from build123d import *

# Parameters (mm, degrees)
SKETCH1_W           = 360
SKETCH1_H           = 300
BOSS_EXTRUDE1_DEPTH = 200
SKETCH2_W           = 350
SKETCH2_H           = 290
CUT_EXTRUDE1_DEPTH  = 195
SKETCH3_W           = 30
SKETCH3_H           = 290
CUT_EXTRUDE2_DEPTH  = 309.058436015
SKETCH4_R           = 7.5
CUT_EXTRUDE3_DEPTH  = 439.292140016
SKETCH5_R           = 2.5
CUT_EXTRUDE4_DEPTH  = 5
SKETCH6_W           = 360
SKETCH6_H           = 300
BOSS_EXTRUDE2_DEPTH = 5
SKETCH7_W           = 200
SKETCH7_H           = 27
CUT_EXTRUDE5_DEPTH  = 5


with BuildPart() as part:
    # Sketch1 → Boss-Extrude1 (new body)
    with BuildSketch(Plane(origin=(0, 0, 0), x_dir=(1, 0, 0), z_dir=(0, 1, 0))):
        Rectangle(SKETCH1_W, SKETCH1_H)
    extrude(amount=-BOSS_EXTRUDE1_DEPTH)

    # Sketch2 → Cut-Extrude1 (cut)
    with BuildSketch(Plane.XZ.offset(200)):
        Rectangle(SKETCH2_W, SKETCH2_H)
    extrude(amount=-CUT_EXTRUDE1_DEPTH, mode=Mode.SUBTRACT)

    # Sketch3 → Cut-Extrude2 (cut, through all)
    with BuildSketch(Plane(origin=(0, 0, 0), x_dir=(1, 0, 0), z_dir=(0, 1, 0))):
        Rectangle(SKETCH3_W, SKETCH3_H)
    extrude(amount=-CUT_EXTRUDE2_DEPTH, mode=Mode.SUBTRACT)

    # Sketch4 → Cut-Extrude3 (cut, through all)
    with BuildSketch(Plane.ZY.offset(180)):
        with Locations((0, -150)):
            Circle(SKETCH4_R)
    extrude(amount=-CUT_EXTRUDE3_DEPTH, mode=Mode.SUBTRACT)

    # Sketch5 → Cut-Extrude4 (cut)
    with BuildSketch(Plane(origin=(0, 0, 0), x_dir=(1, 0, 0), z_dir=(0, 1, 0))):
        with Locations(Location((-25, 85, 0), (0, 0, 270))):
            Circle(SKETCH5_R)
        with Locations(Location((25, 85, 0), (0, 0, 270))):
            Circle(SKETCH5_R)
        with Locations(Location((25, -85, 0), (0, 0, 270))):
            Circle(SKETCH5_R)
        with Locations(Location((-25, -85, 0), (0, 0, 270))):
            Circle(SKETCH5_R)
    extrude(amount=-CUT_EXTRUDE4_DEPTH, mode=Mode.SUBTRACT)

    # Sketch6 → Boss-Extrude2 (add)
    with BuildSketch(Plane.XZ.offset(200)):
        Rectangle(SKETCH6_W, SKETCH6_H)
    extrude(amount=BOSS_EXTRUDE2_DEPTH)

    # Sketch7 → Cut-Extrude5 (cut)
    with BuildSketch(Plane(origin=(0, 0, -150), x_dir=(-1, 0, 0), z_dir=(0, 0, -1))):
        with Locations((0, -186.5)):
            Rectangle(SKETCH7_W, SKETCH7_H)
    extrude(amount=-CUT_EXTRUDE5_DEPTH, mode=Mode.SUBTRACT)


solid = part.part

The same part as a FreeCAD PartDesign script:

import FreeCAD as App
import Part
import Sketcher

V = App.Vector
Q = App.Units.Quantity

doc = App.newDocument("Part")
params = doc.addObject("Spreadsheet::Sheet", "Params")
for row, (alias, value) in enumerate([
    ("sketch1_width", "360 mm"),
    ("sketch1_height", "300 mm"),
    ("pad1_length", "200 mm"),
    ("sketch2_width", "350 mm"),
    ("sketch2_height", "290 mm"),
    ("pocket1_length", "195 mm"),
    ("sketch3_width", "30 mm"),
    ("sketch3_height", "290 mm"),
    ("sketch4_diameter", "15 mm"),
    ("sketch5_diameter", "5 mm"),
    ("pocket4_length", "5 mm"),
    ("sketch6_width", "360 mm"),
    ("sketch6_height", "300 mm"),
    ("pad2_length", "5 mm"),
    ("sketch7_width", "200 mm"),
    ("sketch7_height", "27 mm"),
    ("pocket5_length", "5 mm"),
], start=1):
    params.set(f"A{row}", alias)
    params.set(f"B{row}", "=" + value)
    params.setAlias(f"B{row}", alias)

body = doc.addObject("PartDesign::Body", "Body")

# Sketch on XZ plane
sketch1 = body.newObject("Sketcher::SketchObject", "Sketch")
sketch1.AttachmentSupport = (doc.getObject("XZ_Plane"), [""])
sketch1.MapMode = "FlatFace"
sketch1.addGeometry([
    Part.LineSegment(V(-180, -150, 0), V(-180, 150, 0)),
    Part.LineSegment(V(-180, 150, 0), V(180, 150, 0)),
    Part.LineSegment(V(180, 150, 0), V(180, -150, 0)),
    Part.LineSegment(V(180, -150, 0), V(-180, -150, 0)),
], False)
sketch1.addConstraint([
    Sketcher.Constraint("Coincident", 0, 2, 1, 1),
    Sketcher.Constraint("Coincident", 1, 2, 2, 1),
    Sketcher.Constraint("Coincident", 2, 2, 3, 1),
    Sketcher.Constraint("Coincident", 3, 2, 0, 1),
    Sketcher.Constraint("Vertical", 0),
    Sketcher.Constraint("Horizontal", 1),
    Sketcher.Constraint("Vertical", 2),
    Sketcher.Constraint("Horizontal", 3),
    Sketcher.Constraint("Symmetric", 0, 2, 2, 2, -1, 1),
    Sketcher.Constraint("DistanceX", 1, 1, 1, 2, Q("360 mm")),
    Sketcher.Constraint("DistanceY", 0, 1, 0, 2, Q("300 mm")),
])
sketch1.setExpression("Constraints[9]", "Params.sketch1_width")
sketch1.setExpression("Constraints[10]", "Params.sketch1_height")
pad1 = body.newObject("PartDesign::Pad", "Pad")
pad1.Profile = sketch1
pad1.setExpression("Length", "Params.pad1_length")

# Sketch on XZ plane
sketch2 = body.newObject("Sketcher::SketchObject", "Sketch001")
sketch2.AttachmentSupport = (doc.getObject("XZ_Plane"), [""])
sketch2.MapMode = "FlatFace"
sketch2.AttachmentOffset = App.Placement(V(0, 0, 200), App.Rotation())
sketch2.addGeometry([
    Part.LineSegment(V(-175, 145, 0), V(-175, -145, 0)),
    Part.LineSegment(V(-175, -145, 0), V(175, -145, 0)),
    Part.LineSegment(V(175, -145, 0), V(175, 145, 0)),
    Part.LineSegment(V(175, 145, 0), V(-175, 145, 0)),
], False)
sketch2.addConstraint([
    Sketcher.Constraint("Coincident", 0, 2, 1, 1),
    Sketcher.Constraint("Coincident", 1, 2, 2, 1),
    Sketcher.Constraint("Coincident", 2, 2, 3, 1),
    Sketcher.Constraint("Coincident", 3, 2, 0, 1),
    Sketcher.Constraint("Vertical", 0),
    Sketcher.Constraint("Horizontal", 1),
    Sketcher.Constraint("Vertical", 2),
    Sketcher.Constraint("Horizontal", 3),
    Sketcher.Constraint("Symmetric", 0, 2, 2, 2, -1, 1),
    Sketcher.Constraint("DistanceX", 1, 1, 1, 2, Q("350 mm")),
    Sketcher.Constraint("DistanceY", 0, 2, 0, 1, Q("290 mm")),
])
sketch2.setExpression("Constraints[9]", "Params.sketch2_width")
sketch2.setExpression("Constraints[10]", "Params.sketch2_height")
pocket1 = body.newObject("PartDesign::Pocket", "Pocket")
pocket1.Profile = sketch2
pocket1.setExpression("Length", "Params.pocket1_length")

# Sketch on XZ plane
sketch3 = body.newObject("Sketcher::SketchObject", "Sketch002")
sketch3.AttachmentSupport = (doc.getObject("XZ_Plane"), [""])
sketch3.MapMode = "FlatFace"
sketch3.addGeometry([
    Part.LineSegment(V(-15, -145, 0), V(-15, 145, 0)),
    Part.LineSegment(V(-15, 145, 0), V(15, 145, 0)),
    Part.LineSegment(V(15, 145, 0), V(15, -145, 0)),
    Part.LineSegment(V(15, -145, 0), V(-15, -145, 0)),
], False)
sketch3.addConstraint([
    Sketcher.Constraint("Coincident", 0, 2, 1, 1),
    Sketcher.Constraint("Coincident", 1, 2, 2, 1),
    Sketcher.Constraint("Coincident", 2, 2, 3, 1),
    Sketcher.Constraint("Coincident", 3, 2, 0, 1),
    Sketcher.Constraint("Vertical", 0),
    Sketcher.Constraint("Horizontal", 1),
    Sketcher.Constraint("Vertical", 2),
    Sketcher.Constraint("Horizontal", 3),
    Sketcher.Constraint("Symmetric", 0, 2, 2, 2, -1, 1),
    Sketcher.Constraint("DistanceX", 1, 1, 1, 2, Q("30 mm")),
    Sketcher.Constraint("DistanceY", 0, 1, 0, 2, Q("290 mm")),
])
sketch3.setExpression("Constraints[9]", "Params.sketch3_width")
sketch3.setExpression("Constraints[10]", "Params.sketch3_height")
pocket2 = body.newObject("PartDesign::Pocket", "Pocket001")
pocket2.Profile = sketch3
pocket2.Type = "ThroughAll"
pocket2.Reversed = True

# Sketch on YZ plane
sketch4 = body.newObject("Sketcher::SketchObject", "Sketch003")
sketch4.AttachmentSupport = (doc.getObject("YZ_Plane"), [""])
sketch4.MapMode = "FlatFace"
sketch4.AttachmentOffset = App.Placement(V(0, 0, -180), App.Rotation())
sketch4.addGeometry(Part.Circle(V(-150, 0, 0), V(0, 0, 1), 8), False)
sketch4.addConstraint([
    Sketcher.Constraint("PointOnObject", 0, 3, -1),
    Sketcher.Constraint("Diameter", 0, Q("15 mm")),
    Sketcher.Constraint("DistanceX", 0, 3, -1, 1, Q("150 mm")),
])
sketch4.setExpression("Constraints[1]", "Params.sketch4_diameter")
pocket3 = body.newObject("PartDesign::Pocket", "Pocket002")
pocket3.Profile = sketch4
pocket3.Type = "ThroughAll"
pocket3.Reversed = True

# Sketch on XZ plane
sketch5 = body.newObject("Sketcher::SketchObject", "Sketch004")
sketch5.AttachmentSupport = (doc.getObject("XZ_Plane"), [""])
sketch5.MapMode = "FlatFace"
sketch5.addGeometry([
    Part.Circle(V(-25, -85, 0), V(0, 0, 1), 2.5),
    Part.Circle(V(25, -85, 0), V(0, 0, 1), 2.5),
    Part.Circle(V(25, 85, 0), V(0, 0, 1), 2.5),
    Part.Circle(V(-25, 85, 0), V(0, 0, 1), 2.5),
], False)
sketch5.addConstraint([
    Sketcher.Constraint("Equal", 0, 1),
    Sketcher.Constraint("Equal", 1, 2),
    Sketcher.Constraint("Equal", 2, 3),
    Sketcher.Constraint("Symmetric", 0, 3, 2, 3, -1, 1),
    Sketcher.Constraint("Symmetric", 1, 3, 3, 3, -1, 1),
    Sketcher.Constraint("Symmetric", 0, 3, 1, 3, -2),
    Sketcher.Constraint("Diameter", 0, Q("5 mm")),
    Sketcher.Constraint("DistanceX", 0, 3, -1, 1, Q("25 mm")),
    Sketcher.Constraint("DistanceY", 0, 3, -1, 1, Q("85 mm")),
])
sketch5.setExpression("Constraints[6]", "Params.sketch5_diameter")
pocket4 = body.newObject("PartDesign::Pocket", "Pocket003")
pocket4.Profile = sketch5
pocket4.setExpression("Length", "Params.pocket4_length")
pocket4.Reversed = True

# Sketch on XZ plane
sketch6 = body.newObject("Sketcher::SketchObject", "Sketch005")
sketch6.AttachmentSupport = (doc.getObject("XZ_Plane"), [""])
sketch6.MapMode = "FlatFace"
sketch6.AttachmentOffset = App.Placement(V(0, 0, 200), App.Rotation())
sketch6.addGeometry([
    Part.LineSegment(V(-180, 150, 0), V(-180, -150, 0)),
    Part.LineSegment(V(-180, -150, 0), V(180, -150, 0)),
    Part.LineSegment(V(180, -150, 0), V(180, 150, 0)),
    Part.LineSegment(V(180, 150, 0), V(-180, 150, 0)),
], False)
sketch6.addConstraint([
    Sketcher.Constraint("Coincident", 0, 2, 1, 1),
    Sketcher.Constraint("Coincident", 1, 2, 2, 1),
    Sketcher.Constraint("Coincident", 2, 2, 3, 1),
    Sketcher.Constraint("Coincident", 3, 2, 0, 1),
    Sketcher.Constraint("Vertical", 0),
    Sketcher.Constraint("Horizontal", 1),
    Sketcher.Constraint("Vertical", 2),
    Sketcher.Constraint("Horizontal", 3),
    Sketcher.Constraint("Symmetric", 0, 2, 2, 2, -1, 1),
    Sketcher.Constraint("DistanceX", 1, 1, 1, 2, Q("360 mm")),
    Sketcher.Constraint("DistanceY", 0, 2, 0, 1, Q("300 mm")),
])
sketch6.setExpression("Constraints[9]", "Params.sketch6_width")
sketch6.setExpression("Constraints[10]", "Params.sketch6_height")
pad2 = body.newObject("PartDesign::Pad", "Pad001")
pad2.Profile = sketch6
pad2.setExpression("Length", "Params.pad2_length")

# Sketch on XY plane
sketch7 = body.newObject("Sketcher::SketchObject", "Sketch006")
sketch7.AttachmentSupport = (doc.getObject("XY_Plane"), [""])
sketch7.MapMode = "FlatFace"
sketch7.AttachmentOffset = App.Placement(V(0, 0, -150), App.Rotation())
sketch7.addGeometry([
    Part.LineSegment(V(100, -173, 0), V(100, -200, 0)),
    Part.LineSegment(V(100, -200, 0), V(-100, -200, 0)),
    Part.LineSegment(V(-100, -200, 0), V(-100, -173, 0)),
    Part.LineSegment(V(-100, -173, 0), V(100, -173, 0)),
], False)
sketch7.addConstraint([
    Sketcher.Constraint("Coincident", 0, 2, 1, 1),
    Sketcher.Constraint("Coincident", 1, 2, 2, 1),
    Sketcher.Constraint("Coincident", 2, 2, 3, 1),
    Sketcher.Constraint("Coincident", 3, 2, 0, 1),
    Sketcher.Constraint("Vertical", 0),
    Sketcher.Constraint("Horizontal", 1),
    Sketcher.Constraint("Vertical", 2),
    Sketcher.Constraint("Horizontal", 3),
    Sketcher.Constraint("DistanceX", 1, 2, 1, 1, Q("200 mm")),
    Sketcher.Constraint("DistanceY", 0, 2, 0, 1, Q("27 mm")),
    Sketcher.Constraint("DistanceX", -1, 1, 0, 2, Q("100 mm")),
    Sketcher.Constraint("DistanceY", 0, 2, -1, 1, Q("200 mm")),
])
sketch7.setExpression("Constraints[8]", "Params.sketch7_width")
sketch7.setExpression("Constraints[9]", "Params.sketch7_height")
pocket5 = body.newObject("PartDesign::Pocket", "Pocket004")
pocket5.Profile = sketch7
pocket5.setExpression("Length", "Params.pocket5_length")
pocket5.Reversed = True

doc.recompute()
